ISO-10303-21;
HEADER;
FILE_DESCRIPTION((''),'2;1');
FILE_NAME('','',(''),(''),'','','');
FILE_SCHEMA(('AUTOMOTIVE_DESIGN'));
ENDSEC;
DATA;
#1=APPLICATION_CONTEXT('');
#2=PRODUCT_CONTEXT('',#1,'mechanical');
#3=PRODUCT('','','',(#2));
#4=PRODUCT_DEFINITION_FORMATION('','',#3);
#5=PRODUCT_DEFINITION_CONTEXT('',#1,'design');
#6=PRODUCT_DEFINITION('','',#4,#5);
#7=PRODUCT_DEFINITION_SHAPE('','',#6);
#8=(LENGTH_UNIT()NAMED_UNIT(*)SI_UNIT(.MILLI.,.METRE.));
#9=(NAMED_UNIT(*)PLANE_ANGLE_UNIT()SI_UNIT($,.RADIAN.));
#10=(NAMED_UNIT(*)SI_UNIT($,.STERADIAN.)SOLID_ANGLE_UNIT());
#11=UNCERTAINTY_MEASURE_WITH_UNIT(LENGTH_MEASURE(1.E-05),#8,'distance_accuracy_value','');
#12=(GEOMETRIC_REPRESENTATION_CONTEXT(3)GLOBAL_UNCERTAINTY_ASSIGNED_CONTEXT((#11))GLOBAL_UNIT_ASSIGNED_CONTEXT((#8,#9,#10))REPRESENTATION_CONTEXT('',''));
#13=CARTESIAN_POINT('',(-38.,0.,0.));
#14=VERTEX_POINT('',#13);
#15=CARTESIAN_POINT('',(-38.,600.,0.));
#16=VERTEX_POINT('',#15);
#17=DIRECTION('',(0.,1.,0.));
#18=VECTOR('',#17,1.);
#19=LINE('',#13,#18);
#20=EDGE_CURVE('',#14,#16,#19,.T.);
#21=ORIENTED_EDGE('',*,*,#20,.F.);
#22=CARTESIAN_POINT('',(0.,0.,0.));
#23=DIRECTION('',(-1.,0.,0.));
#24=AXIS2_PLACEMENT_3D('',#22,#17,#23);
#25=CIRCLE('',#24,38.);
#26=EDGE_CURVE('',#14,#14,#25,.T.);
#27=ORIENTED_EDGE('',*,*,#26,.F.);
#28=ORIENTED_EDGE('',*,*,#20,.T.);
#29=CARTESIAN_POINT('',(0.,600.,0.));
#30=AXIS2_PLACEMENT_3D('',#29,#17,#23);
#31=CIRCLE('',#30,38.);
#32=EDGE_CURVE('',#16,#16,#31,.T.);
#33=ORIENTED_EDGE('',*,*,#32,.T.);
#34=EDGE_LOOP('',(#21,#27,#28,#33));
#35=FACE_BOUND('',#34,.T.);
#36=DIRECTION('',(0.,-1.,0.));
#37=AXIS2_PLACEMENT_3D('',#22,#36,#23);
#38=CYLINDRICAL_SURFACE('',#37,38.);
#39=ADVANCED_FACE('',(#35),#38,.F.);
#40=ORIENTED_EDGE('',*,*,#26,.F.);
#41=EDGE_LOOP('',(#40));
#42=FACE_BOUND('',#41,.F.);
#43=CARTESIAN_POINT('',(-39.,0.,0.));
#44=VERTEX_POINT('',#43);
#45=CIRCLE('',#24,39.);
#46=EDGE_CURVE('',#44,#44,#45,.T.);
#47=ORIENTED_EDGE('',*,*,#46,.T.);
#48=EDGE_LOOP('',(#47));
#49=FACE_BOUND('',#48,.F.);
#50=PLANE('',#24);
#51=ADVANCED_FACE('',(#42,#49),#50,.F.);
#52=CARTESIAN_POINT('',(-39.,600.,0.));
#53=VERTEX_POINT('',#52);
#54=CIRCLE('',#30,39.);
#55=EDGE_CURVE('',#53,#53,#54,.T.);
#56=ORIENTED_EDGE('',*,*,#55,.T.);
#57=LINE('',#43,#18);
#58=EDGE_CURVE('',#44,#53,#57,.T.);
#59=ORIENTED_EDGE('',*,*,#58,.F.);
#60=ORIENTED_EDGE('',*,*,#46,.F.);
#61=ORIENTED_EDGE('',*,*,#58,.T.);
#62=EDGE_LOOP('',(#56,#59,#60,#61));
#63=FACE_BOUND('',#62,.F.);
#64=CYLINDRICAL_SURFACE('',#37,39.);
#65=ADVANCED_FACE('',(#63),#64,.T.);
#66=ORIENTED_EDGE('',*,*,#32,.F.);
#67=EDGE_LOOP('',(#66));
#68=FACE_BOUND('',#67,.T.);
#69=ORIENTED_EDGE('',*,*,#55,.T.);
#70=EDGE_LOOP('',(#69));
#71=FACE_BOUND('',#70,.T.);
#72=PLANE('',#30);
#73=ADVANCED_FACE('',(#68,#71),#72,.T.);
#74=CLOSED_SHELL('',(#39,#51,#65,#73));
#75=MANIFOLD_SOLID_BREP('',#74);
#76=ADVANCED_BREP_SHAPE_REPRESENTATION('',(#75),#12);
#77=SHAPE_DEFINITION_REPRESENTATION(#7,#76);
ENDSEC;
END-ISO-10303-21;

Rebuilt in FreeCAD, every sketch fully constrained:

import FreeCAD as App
import Part
import Sketcher

V = App.Vector

doc = App.newDocument("Part")
body = doc.addObject("PartDesign::Body", "Body")

# Sketch on XZ plane
sketch1 = body.newObject("Sketcher::SketchObject", "Sketch")
sketch1.AttachmentSupport = (doc.getObject("XZ_Plane"), [""])
sketch1.MapMode = "FlatFace"
sketch1.addGeometry(Part.Circle(V(0, 0, 0), V(0, 0, 1), 39), False)
sketch1.addGeometry(Part.Circle(V(0, 0, 0), V(0, 0, 1), 38), False)
sketch1.addConstraint(Sketcher.Constraint("Coincident", 0, 3, -1, 1))
sketch1.addConstraint(Sketcher.Constraint("Coincident", 1, 3, -1, 1))
sketch1.addConstraint(Sketcher.Constraint("Diameter", 0, 78.0))
sketch1.addConstraint(Sketcher.Constraint("Diameter", 1, 76.0))
pad1 = body.newObject("PartDesign::Pad", "Pad")
pad1.Profile = sketch1
pad1.Length = 600
pad1.Reversed = True

doc.recompute()
